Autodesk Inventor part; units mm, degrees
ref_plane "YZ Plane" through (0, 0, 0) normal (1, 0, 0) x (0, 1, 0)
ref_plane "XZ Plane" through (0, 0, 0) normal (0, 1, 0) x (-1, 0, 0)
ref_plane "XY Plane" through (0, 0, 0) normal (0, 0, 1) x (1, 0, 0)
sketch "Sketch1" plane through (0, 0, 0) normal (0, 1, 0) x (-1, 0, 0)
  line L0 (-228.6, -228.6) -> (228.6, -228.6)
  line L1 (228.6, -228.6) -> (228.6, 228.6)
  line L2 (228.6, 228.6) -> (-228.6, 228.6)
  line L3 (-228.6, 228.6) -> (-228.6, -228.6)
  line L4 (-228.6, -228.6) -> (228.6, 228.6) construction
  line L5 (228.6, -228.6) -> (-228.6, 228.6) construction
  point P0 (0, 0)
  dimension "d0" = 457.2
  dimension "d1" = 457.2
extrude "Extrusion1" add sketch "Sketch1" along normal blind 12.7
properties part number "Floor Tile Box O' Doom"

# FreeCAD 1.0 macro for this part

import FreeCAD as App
import Part
import Sketcher
from FreeCAD import Vector
Q = App.Units.Quantity


def add_polygon(sketch, points):
    """Adds a closed chain of lines whose ends are joined by coincident constraints."""
    first, n = sketch.GeometryCount, len(points)
    for a, b in zip(points, points[1:] + points[:1]):
        sketch.addGeometry(Part.LineSegment(App.Vector(*a, 0), App.Vector(*b, 0)), False)
    for i in range(n):
        sketch.addConstraint(Sketcher.Constraint("Coincident", first + i, 2, first + (i + 1) % n, 1))

doc = App.newDocument("Part")
body = doc.addObject("PartDesign::Body", "Body")

sketch1 = body.newObject("Sketcher::SketchObject", "Sketch")
sketch1.AttachmentSupport = (doc.getObject("XZ_Plane"), [""])
sketch1.MapMode = "FlatFace"
add_polygon(sketch1, [(228.6, 228.6), (228.6, -228.6), (-228.6, -228.6), (-228.6, 228.6)])
sketch1.addConstraint(Sketcher.Constraint("Vertical", 0))
sketch1.addConstraint(Sketcher.Constraint("Horizontal", 1))
sketch1.addConstraint(Sketcher.Constraint("Vertical", 2))
sketch1.addConstraint(Sketcher.Constraint("Horizontal", 3))
sketch1.addConstraint(Sketcher.Constraint("Symmetric", 0, 2, 2, 2, -1, 1))
sketch1.addConstraint(Sketcher.Constraint("Equal", 3, 0))
sketch1.addConstraint(Sketcher.Constraint("DistanceX", 1, 2, 1, 1, Q("18 in")))
pad1 = body.newObject("PartDesign::Pad", "Pad")
pad1.Profile = sketch1
pad1.Length = Q("0.5 in")
pad1.Reversed = True

doc.recompute()
